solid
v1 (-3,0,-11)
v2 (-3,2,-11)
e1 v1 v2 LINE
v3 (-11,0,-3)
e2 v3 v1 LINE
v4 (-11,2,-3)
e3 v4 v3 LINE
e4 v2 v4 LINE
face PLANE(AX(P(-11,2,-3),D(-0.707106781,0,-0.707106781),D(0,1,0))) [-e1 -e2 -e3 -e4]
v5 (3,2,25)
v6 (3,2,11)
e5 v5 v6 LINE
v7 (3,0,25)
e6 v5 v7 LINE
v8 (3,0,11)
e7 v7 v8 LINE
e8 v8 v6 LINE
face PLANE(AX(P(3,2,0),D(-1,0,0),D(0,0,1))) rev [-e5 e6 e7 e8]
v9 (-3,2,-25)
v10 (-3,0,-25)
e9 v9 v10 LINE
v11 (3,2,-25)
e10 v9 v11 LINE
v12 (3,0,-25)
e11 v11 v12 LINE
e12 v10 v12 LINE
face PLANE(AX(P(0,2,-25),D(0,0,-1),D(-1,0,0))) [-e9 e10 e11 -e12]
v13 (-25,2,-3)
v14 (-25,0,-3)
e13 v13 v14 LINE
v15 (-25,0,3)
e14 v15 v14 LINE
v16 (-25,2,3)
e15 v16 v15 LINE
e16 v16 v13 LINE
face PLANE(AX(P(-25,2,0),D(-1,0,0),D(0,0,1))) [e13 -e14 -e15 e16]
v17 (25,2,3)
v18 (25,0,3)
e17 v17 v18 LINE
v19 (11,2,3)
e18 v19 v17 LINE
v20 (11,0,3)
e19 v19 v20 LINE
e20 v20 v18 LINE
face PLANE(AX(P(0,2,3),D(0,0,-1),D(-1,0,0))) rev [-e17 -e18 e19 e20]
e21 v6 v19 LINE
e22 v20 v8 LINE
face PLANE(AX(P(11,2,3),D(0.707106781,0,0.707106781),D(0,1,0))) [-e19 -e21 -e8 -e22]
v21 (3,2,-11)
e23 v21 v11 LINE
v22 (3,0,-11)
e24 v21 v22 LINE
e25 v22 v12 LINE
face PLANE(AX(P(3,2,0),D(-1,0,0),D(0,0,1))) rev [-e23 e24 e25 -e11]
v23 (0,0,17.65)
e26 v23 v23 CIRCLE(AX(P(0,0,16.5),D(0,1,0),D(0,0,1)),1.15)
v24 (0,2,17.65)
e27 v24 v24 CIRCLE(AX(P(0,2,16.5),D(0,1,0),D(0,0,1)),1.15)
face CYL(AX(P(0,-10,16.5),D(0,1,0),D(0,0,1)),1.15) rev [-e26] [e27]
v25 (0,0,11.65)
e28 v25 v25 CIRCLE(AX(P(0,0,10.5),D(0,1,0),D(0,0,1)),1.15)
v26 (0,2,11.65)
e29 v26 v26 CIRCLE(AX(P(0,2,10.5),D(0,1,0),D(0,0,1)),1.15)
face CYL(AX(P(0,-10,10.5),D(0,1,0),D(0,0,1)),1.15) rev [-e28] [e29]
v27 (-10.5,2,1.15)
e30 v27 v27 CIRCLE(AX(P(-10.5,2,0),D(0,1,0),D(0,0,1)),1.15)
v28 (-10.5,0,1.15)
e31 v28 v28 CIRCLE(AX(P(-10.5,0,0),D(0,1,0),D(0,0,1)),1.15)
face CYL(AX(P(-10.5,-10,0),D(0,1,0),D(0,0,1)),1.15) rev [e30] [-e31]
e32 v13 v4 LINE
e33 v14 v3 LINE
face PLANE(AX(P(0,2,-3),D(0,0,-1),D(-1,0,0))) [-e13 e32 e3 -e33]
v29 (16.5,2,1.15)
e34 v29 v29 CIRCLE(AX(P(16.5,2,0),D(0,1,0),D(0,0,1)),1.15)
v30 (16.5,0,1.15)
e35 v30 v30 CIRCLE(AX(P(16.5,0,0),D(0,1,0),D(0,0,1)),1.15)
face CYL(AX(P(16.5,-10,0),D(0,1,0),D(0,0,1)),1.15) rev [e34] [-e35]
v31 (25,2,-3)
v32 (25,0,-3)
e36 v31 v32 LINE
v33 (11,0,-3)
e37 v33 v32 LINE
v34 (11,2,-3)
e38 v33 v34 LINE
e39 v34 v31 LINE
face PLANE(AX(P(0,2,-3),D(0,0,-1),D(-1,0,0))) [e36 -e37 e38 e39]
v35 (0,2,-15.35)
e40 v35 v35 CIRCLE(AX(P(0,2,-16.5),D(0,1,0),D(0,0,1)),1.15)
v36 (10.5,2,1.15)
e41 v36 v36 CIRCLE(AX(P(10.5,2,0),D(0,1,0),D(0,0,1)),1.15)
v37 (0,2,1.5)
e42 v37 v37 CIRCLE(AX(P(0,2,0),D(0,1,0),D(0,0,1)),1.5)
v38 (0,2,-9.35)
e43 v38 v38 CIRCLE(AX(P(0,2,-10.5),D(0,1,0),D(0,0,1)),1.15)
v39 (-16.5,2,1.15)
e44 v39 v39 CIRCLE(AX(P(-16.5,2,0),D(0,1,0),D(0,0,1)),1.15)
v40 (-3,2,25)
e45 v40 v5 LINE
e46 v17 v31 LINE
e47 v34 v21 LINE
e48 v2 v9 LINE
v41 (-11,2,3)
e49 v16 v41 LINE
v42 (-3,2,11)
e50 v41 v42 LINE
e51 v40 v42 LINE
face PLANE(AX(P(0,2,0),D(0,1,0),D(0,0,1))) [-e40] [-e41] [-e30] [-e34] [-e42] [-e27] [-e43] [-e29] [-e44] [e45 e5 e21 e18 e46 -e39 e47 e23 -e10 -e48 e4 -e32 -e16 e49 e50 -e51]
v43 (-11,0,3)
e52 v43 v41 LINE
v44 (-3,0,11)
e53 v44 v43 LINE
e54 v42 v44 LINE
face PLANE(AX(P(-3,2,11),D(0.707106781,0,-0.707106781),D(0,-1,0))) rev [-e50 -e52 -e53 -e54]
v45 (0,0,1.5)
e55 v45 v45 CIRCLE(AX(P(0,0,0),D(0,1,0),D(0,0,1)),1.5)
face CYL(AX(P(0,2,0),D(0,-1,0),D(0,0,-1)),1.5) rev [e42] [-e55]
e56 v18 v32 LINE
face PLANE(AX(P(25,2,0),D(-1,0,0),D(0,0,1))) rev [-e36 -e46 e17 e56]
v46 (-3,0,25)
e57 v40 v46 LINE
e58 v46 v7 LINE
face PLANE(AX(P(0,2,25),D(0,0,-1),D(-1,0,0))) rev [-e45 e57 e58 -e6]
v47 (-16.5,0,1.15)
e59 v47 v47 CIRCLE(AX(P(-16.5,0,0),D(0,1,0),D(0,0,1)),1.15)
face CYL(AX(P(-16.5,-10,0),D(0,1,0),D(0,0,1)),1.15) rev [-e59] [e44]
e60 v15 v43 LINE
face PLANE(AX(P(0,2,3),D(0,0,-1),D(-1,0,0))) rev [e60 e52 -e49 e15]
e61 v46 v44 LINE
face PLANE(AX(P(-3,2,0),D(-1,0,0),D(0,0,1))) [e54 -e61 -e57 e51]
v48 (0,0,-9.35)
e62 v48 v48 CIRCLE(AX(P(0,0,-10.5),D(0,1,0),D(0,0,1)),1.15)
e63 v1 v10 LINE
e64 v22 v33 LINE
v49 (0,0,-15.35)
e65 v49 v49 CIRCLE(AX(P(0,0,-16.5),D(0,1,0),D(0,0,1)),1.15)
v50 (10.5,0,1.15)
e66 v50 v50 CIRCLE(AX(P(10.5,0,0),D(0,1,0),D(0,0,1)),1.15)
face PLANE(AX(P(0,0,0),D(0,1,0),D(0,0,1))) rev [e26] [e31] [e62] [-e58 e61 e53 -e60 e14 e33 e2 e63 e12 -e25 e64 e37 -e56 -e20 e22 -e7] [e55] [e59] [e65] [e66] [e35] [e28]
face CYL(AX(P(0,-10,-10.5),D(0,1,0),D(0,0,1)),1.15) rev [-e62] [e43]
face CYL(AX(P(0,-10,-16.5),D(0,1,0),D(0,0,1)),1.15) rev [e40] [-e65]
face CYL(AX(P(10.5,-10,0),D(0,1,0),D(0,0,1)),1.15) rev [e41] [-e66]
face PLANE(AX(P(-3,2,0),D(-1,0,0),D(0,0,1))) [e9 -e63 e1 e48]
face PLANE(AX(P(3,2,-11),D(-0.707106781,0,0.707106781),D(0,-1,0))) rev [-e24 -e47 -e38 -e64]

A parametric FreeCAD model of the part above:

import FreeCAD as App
import Part
import Sketcher
from FreeCAD import Vector
Q = App.Units.Quantity


def edges_at(feature, points):
    """Names of the edges that pass closest to the given points."""
    edges = feature.Shape.Edges
    near = lambda p: min(range(len(edges)), key=lambda i: edges[i].distToShape(Part.Vertex(*p))[0])
    return sorted({f"Edge{near(p) + 1}" for p in points})

doc = App.newDocument("Part")
params = doc.addObject("Spreadsheet::Sheet", "Params")
for row, (alias, value) in enumerate([
    ("sketch1_diameter", "3 mm"),
    ("sketch1_width", "22 mm"),
    ("sketch1_width2", "6 mm"),
    ("pad1_length", "2 mm"),
    ("sketch2_diameter", "2.3 mm"),
    ("pocket1_length", "12 mm"),
    ("chamfer_size", "8 mm"),
], start=1):
    params.set(f"A{row}", alias)
    params.set(f"B{row}", "=" + value)
    params.setAlias(f"B{row}", alias)

body = doc.addObject("PartDesign::Body", "Body")

sketch1 = doc.addObject("Sketcher::SketchObject", "Sketch")
body.addObject(sketch1)
sketch1.AttachmentSupport = (doc.XZ_Plane, [""])
sketch1.MapMode = "FlatFace"
sketch1.addGeometry([
    Part.LineSegment(Vector(-25, -3, 0), Vector(-25, 3, 0)),
    Part.LineSegment(Vector(-25, 3, 0), Vector(-3, 3, 0)),
    Part.LineSegment(Vector(-3, 3, 0), Vector(-3, 25, 0)),
    Part.LineSegment(Vector(-3, 25, 0), Vector(3, 25, 0)),
    Part.LineSegment(Vector(3, 25, 0), Vector(3, 3, 0)),
    Part.LineSegment(Vector(3, 3, 0), Vector(25, 3, 0)),
    Part.LineSegment(Vector(25, 3, 0), Vector(25, -3, 0)),
    Part.LineSegment(Vector(25, -3, 0), Vector(3, -3, 0)),
    Part.LineSegment(Vector(3, -3, 0), Vector(3, -25, 0)),
    Part.LineSegment(Vector(3, -25, 0), Vector(-3, -25, 0)),
    Part.LineSegment(Vector(-3, -25, 0), Vector(-3, -3, 0)),
    Part.LineSegment(Vector(-3, -3, 0), Vector(-25, -3, 0)),
    Part.Circle(Vector(0, 0, 0), Vector(0, 0, 1), 1.5),
], False)
sketch1.addConstraint([
    Sketcher.Constraint("Coincident", 0, 2, 1, 1),
    Sketcher.Constraint("Coincident", 1, 2, 2, 1),
    Sketcher.Constraint("Coincident", 2, 2, 3, 1),
    Sketcher.Constraint("Coincident", 3, 2, 4, 1),
    Sketcher.Constraint("Coincident", 4, 2, 5, 1),
    Sketcher.Constraint("Coincident", 5, 2, 6, 1),
    Sketcher.Constraint("Coincident", 6, 2, 7, 1),
    Sketcher.Constraint("Coincident", 7, 2, 8, 1),
    Sketcher.Constraint("Coincident", 8, 2, 9, 1),
    Sketcher.Constraint("Coincident", 9, 2, 10, 1),
    Sketcher.Constraint("Coincident", 10, 2, 11, 1),
    Sketcher.Constraint("Coincident", 11, 2, 0, 1),
    Sketcher.Constraint("Vertical", 0),
    Sketcher.Constraint("Horizontal", 1),
    Sketcher.Constraint("Vertical", 2),
    Sketcher.Constraint("Horizontal", 3),
    Sketcher.Constraint("Vertical", 4),
    Sketcher.Constraint("Horizontal", 5),
    Sketcher.Constraint("Vertical", 6),
    Sketcher.Constraint("Horizontal", 7),
    Sketcher.Constraint("Vertical", 8),
    Sketcher.Constraint("Horizontal", 9),
    Sketcher.Constraint("Vertical", 10),
    Sketcher.Constraint("Horizontal", 11),
    Sketcher.Constraint("Coincident", 12, 3, -1, 1),
    Sketcher.Constraint("Symmetric", 0, 2, 6, 2, -1, 1),
    Sketcher.Constraint("Symmetric", 2, 2, 8, 2, -1, 1),
    Sketcher.Constraint("Symmetric", 4, 2, 10, 2, -1, 1),
    Sketcher.Constraint("Symmetric", 1, 2, 4, 2, -2),
    Sketcher.Constraint("Equal", 9, 0),
    Sketcher.Constraint("Equal", 11, 2),
    Sketcher.Constraint("Diameter", 12, Q("3 mm")),
    Sketcher.Constraint("DistanceX", 1, 1, 1, 2, Q("22 mm")),
    Sketcher.Constraint("DistanceX", 3, 1, 3, 2, Q("6 mm")),
])
sketch1.setExpression("Constraints[31]", "Params.sketch1_diameter")
sketch1.setExpression("Constraints[32]", "Params.sketch1_width")
sketch1.setExpression("Constraints[33]", "Params.sketch1_width2")
pad1 = doc.addObject("PartDesign::Pad", "Pad")
body.addObject(pad1)
pad1.Profile = sketch1
pad1.setExpression("Length", "Params.pad1_length")
pad1.Reversed = True

sketch2 = doc.addObject("Sketcher::SketchObject", "Sketch001")
body.addObject(sketch2)
sketch2.AttachmentSupport = (doc.XZ_Plane, [""])
sketch2.MapMode = "FlatFace"
sketch2.AttachmentOffset = App.Placement(Vector(0, 0, -2), App.Rotation())
sketch2.addGeometry([
    Part.Circle(Vector(0, -10.5, 0), Vector(0, 0, 1), 1.1),
    Part.Circle(Vector(0, -16.5, 0), Vector(0, 0, 1), 1.1),
    Part.Circle(Vector(16.5, 0, 0), Vector(0, 0, 1), 1.1),
    Part.Circle(Vector(10.5, 0, 0), Vector(0, 0, 1), 1.1),
    Part.Circle(Vector(0, 16.5, 0), Vector(0, 0, 1), 1.1),
    Part.Circle(Vector(0, 10.5, 0), Vector(0, 0, 1), 1.1),
    Part.Circle(Vector(-16.5, 0, 0), Vector(0, 0, 1), 1.1),
    Part.Circle(Vector(-10.5, 0, 0), Vector(0, 0, 1), 1.1),
], False)
sketch2.addConstraint([
    Sketcher.Constraint("Equal", 0, 1),
    Sketcher.Constraint("Equal", 1, 2),
    Sketcher.Constraint("Equal", 2, 3),
    Sketcher.Constraint("Equal", 3, 4),
    Sketcher.Constraint("Equal", 4, 5),
    Sketcher.Constraint("Equal", 5, 6),
    Sketcher.Constraint("Equal", 6, 7),
    Sketcher.Constraint("Symmetric", 1, 3, 4, 3, -1, 1),
    Sketcher.Constraint("Symmetric", 0, 3, 5, 3, -1, 1),
    Sketcher.Constraint("Symmetric", 2, 3, 6, 3, -1, 1),
    Sketcher.Constraint("Symmetric", 3, 3, 7, 3, -1, 1),
    Sketcher.Constraint("PointOnObject", 0, 3, -2),
    Sketcher.Constraint("PointOnObject", 1, 3, -2),
    Sketcher.Constraint("PointOnObject", 2, 3, -1),
    Sketcher.Constraint("PointOnObject", 3, 3, -1),
    Sketcher.Constraint("Diameter", 0, Q("2.3 mm")),
    Sketcher.Constraint("DistanceY", 1, 3, 0, 3, Q("6 mm")),
    Sketcher.Constraint("DistanceX", 3, 3, 2, 3, Q("6 mm")),
    Sketcher.Constraint("DistanceY", 0, 3, 4, 3, Q("27 mm")),
    Sketcher.Constraint("DistanceX", 6, 3, 3, 3, Q("27 mm")),
])
sketch2.setExpression("Constraints[15]", "Params.sketch2_diameter")
pocket1 = doc.addObject("PartDesign::Pocket", "Pocket")
body.addObject(pocket1)
pocket1.Profile = sketch2
pocket1.setExpression("Length", "Params.pocket1_length")
pocket1.Reversed = True
doc.recompute()

chamfer = doc.addObject("PartDesign::Chamfer", "Chamfer")
body.addObject(chamfer)
chamfer.Base = (pocket1, edges_at(pocket1, [
    (-3, 1, -3),
    (3, 1, -3),
    (3, 1, 3),
    (-3, 1, 3),
]))
chamfer.setExpression("Size", "Params.chamfer_size")

doc.recompute()
